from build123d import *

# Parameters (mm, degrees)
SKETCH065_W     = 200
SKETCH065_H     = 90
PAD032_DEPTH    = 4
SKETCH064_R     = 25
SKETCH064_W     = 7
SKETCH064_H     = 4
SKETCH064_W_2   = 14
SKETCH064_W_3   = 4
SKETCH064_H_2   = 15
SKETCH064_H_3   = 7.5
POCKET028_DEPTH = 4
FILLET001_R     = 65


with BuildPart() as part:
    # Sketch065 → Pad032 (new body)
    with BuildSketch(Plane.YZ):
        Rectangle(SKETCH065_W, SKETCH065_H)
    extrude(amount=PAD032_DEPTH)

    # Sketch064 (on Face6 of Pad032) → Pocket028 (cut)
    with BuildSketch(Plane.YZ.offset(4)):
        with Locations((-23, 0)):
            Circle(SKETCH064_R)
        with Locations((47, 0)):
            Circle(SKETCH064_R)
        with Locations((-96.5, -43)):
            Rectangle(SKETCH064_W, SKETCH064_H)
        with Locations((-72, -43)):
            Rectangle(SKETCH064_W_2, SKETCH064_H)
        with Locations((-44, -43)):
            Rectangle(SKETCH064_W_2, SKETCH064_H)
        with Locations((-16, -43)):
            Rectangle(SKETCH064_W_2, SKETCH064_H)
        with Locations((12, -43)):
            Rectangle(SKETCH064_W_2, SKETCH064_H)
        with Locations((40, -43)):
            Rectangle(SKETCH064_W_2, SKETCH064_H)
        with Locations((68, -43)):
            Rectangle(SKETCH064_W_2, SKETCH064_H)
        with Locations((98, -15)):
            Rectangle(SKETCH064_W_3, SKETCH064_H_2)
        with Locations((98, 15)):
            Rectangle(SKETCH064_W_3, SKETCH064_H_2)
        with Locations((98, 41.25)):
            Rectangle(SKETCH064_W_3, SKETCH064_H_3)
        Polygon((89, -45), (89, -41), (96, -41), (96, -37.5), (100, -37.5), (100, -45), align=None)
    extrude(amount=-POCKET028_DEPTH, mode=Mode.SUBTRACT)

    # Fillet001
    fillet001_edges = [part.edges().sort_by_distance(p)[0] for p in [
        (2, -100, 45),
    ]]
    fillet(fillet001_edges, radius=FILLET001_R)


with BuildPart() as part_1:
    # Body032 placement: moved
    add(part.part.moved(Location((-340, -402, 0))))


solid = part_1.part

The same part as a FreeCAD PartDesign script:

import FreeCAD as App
import Part
import Sketcher

V = App.Vector
Q = App.Units.Quantity


def edges_at(feature, points):
    """Names of the edges that pass closest to the given points."""
    edges = feature.Shape.Edges
    near = lambda p: min(range(len(edges)), key=lambda i: edges[i].distToShape(Part.Vertex(*p))[0])
    return sorted({f"Edge{near(p) + 1}" for p in points})

doc = App.newDocument("Part")
params = doc.addObject("Spreadsheet::Sheet", "Params")
for row, (alias, value) in enumerate([
    ("sketch1_width", "200 mm"),
    ("sketch1_height", "90 mm"),
    ("pad1_length", "4 mm"),
    ("sketch2_diameter", "50 mm"),
    ("sketch2_width", "7 mm"),
    ("sketch2_width2", "14 mm"),
    ("sketch2_width3", "4 mm"),
    ("sketch2_height", "15 mm"),
    ("pocket1_length", "4 mm"),
    ("fillet_radius", "65 mm"),
], start=1):
    params.set(f"A{row}", alias)
    params.set(f"B{row}", "=" + value)
    params.setAlias(f"B{row}", alias)

body = doc.addObject("PartDesign::Body", "Body")

sketch1 = body.newObject("Sketcher::SketchObject", "Sketch")
sketch1.AttachmentSupport = (doc.getObject("YZ_Plane"), [""])
sketch1.MapMode = "FlatFace"
sketch1.addGeometry(Part.LineSegment(V(-100, 45, 0), V(-100, -45, 0)), False)
sketch1.addGeometry(Part.LineSegment(V(-100, -45, 0), V(100, -45, 0)), False)
sketch1.addGeometry(Part.LineSegment(V(100, -45, 0), V(100, 45, 0)), False)
sketch1.addGeometry(Part.LineSegment(V(100, 45, 0), V(-100, 45, 0)), False)
sketch1.addConstraint(Sketcher.Constraint("Coincident", 0, 2, 1, 1))
sketch1.addConstraint(Sketcher.Constraint("Coincident", 1, 2, 2, 1))
sketch1.addConstraint(Sketcher.Constraint("Coincident", 2, 2, 3, 1))
sketch1.addConstraint(Sketcher.Constraint("Coincident", 3, 2, 0, 1))
sketch1.addConstraint(Sketcher.Constraint("Vertical", 0))
sketch1.addConstraint(Sketcher.Constraint("Horizontal", 1))
sketch1.addConstraint(Sketcher.Constraint("Vertical", 2))
sketch1.addConstraint(Sketcher.Constraint("Horizontal", 3))
sketch1.addConstraint(Sketcher.Constraint("Symmetric", 0, 2, 2, 2, -1, 1))
sketch1.addConstraint(Sketcher.Constraint("DistanceX", 1, 1, 1, 2, Q("200 mm")))
sketch1.addConstraint(Sketcher.Constraint("DistanceY", 0, 2, 0, 1, Q("90 mm")))
sketch1.setExpression("Constraints[9]", "Params.sketch1_width")
sketch1.setExpression("Constraints[10]", "Params.sketch1_height")
pad1 = body.newObject("PartDesign::Pad", "Pad")
pad1.Profile = sketch1
pad1.setExpression("Length", "Params.pad1_length")

sketch2 = body.newObject("Sketcher::SketchObject", "Sketch001")
sketch2.AttachmentSupport = (doc.getObject("YZ_Plane"), [""])
sketch2.MapMode = "FlatFace"
sketch2.AttachmentOffset = App.Placement(V(0, 0, 4), App.Rotation())
sketch2.addGeometry(Part.Circle(V(-23, 0, 0), V(0, 0, 1), 25), False)
sketch2.addGeometry(Part.Circle(V(47, 0, 0), V(0, 0, 1), 25), False)
sketch2.addGeometry(Part.LineSegment(V(-100, -41, 0), V(-100, -45, 0)), False)
sketch2.addGeometry(Part.LineSegment(V(-100, -45, 0), V(-93, -45, 0)), False)
sketch2.addGeometry(Part.LineSegment(V(-93, -45, 0), V(-93, -41, 0)), False)
sketch2.addGeometry(Part.LineSegment(V(-93, -41, 0), V(-100, -41, 0)), False)
sketch2.addGeometry(Part.LineSegment(V(-79, -41, 0), V(-79, -45, 0)), False)
sketch2.addGeometry(Part.LineSegment(V(-79, -45, 0), V(-65, -45, 0)), False)
sketch2.addGeometry(Part.LineSegment(V(-65, -45, 0), V(-65, -41, 0)), False)
sketch2.addGeometry(Part.LineSegment(V(-65, -41, 0), V(-79, -41, 0)), False)
sketch2.addGeometry(Part.LineSegment(V(-51, -41, 0), V(-51, -45, 0)), False)
sketch2.addGeometry(Part.LineSegment(V(-51, -45, 0), V(-37, -45, 0)), False)
sketch2.addGeometry(Part.LineSegment(V(-37, -45, 0), V(-37, -41, 0)), False)
sketch2.addGeometry(Part.LineSegment(V(-37, -41, 0), V(-51, -41, 0)), False)
sketch2.addGeometry(Part.LineSegment(V(-23, -41, 0), V(-23, -45, 0)), False)
sketch2.addGeometry(Part.LineSegment(V(-23, -45, 0), V(-9, -45, 0)), False)
sketch2.addGeometry(Part.LineSegment(V(-9, -45, 0), V(-9, -41, 0)), False)
sketch2.addGeometry(Part.LineSegment(V(-9, -41, 0), V(-23, -41, 0)), False)
sketch2.addGeometry(Part.LineSegment(V(5, -41, 0), V(5, -45, 0)), False)
sketch2.addGeometry(Part.LineSegment(V(5, -45, 0), V(19, -45, 0)), False)
sketch2.addGeometry(Part.LineSegment(V(19, -45, 0), V(19, -41, 0)), False)
sketch2.addGeometry(Part.LineSegment(V(19, -41, 0), V(5, -41, 0)), False)
sketch2.addGeometry(Part.LineSegment(V(33, -41, 0), V(33, -45, 0)), False)
sketch2.addGeometry(Part.LineSegment(V(33, -45, 0), V(47, -45, 0)), False)
sketch2.addGeometry(Part.LineSegment(V(47, -45, 0), V(47, -41, 0)), False)
sketch2.addGeometry(Part.LineSegment(V(47, -41, 0), V(33, -41, 0)), False)
sketch2.addGeometry(Part.LineSegment(V(61, -41, 0), V(61, -45, 0)), False)
sketch2.addGeometry(Part.LineSegment(V(61, -45, 0), V(75, -45, 0)), False)
sketch2.addGeometry(Part.LineSegment(V(75, -45, 0), V(75, -41, 0)), False)
sketch2.addGeometry(Part.LineSegment(V(75, -41, 0), V(61, -41, 0)), False)
sketch2.addGeometry(Part.LineSegment(V(96, -7.5, 0), V(96, -22.5, 0)), False)
sketch2.addGeometry(Part.LineSegment(V(96, -22.5, 0), V(100, -22.5, 0)), False)
sketch2.addGeometry(Part.LineSegment(V(100, -22.5, 0), V(100, -7.5, 0)), False)
sketch2.addGeometry(Part.LineSegment(V(100, -7.5, 0), V(96, -7.5, 0)), False)
sketch2.addGeometry(Part.LineSegment(V(96, 22.5, 0), V(96, 7.5, 0)), False)
sketch2.addGeometry(Part.LineSegment(V(96, 7.5, 0), V(100, 7.5, 0)), False)
sketch2.addGeometry(Part.LineSegment(V(100, 7.5, 0), V(100, 22.5, 0)), False)
sketch2.addGeometry(Part.LineSegment(V(100, 22.5, 0), V(96, 22.5, 0)), False)
sketch2.addGeometry(Part.LineSegment(V(96, 45, 0), V(96, 37.5, 0)), False)
sketch2.addGeometry(Part.LineSegment(V(96, 37.5, 0), V(100, 37.5, 0)), False)
sketch2.addGeometry(Part.LineSegment(V(100, 37.5, 0), V(100, 45, 0)), False)
sketch2.addGeometry(Part.LineSegment(V(100, 45, 0), V(96, 45, 0)), False)
sketch2.addGeometry(Part.LineSegment(V(89, -41, 0), V(89, -45, 0)), False)
sketch2.addGeometry(Part.LineSegment(V(89, -45, 0), V(100, -45, 0)), False)
sketch2.addGeometry(Part.LineSegment(V(100, -45, 0), V(100, -37.5, 0)), False)
sketch2.addGeometry(Part.LineSegment(V(100, -37.5, 0), V(96, -37.5, 0)), False)
sketch2.addGeometry(Part.LineSegment(V(96, -37.5, 0), V(96, -41, 0)), False)
sketch2.addGeometry(Part.LineSegment(V(96, -41, 0), V(89, -41, 0)), False)
sketch2.addConstraint(Sketcher.Constraint("Coincident", 2, 2, 3, 1))
sketch2.addConstraint(Sketcher.Constraint("Coincident", 3, 2, 4, 1))
sketch2.addConstraint(Sketcher.Constraint("Coincident", 4, 2, 5, 1))
sketch2.addConstraint(Sketcher.Constraint("Coincident", 5, 2, 2, 1))
sketch2.addConstraint(Sketcher.Constraint("Coincident", 6, 2, 7, 1))
sketch2.addConstraint(Sketcher.Constraint("Coincident", 7, 2, 8, 1))
sketch2.addConstraint(Sketcher.Constraint("Coincident", 8, 2, 9, 1))
sketch2.addConstraint(Sketcher.Constraint("Coincident", 9, 2, 6, 1))
sketch2.addConstraint(Sketcher.Constraint("Coincident", 10, 2, 11, 1))
sketch2.addConstraint(Sketcher.Constraint("Coincident", 11, 2, 12, 1))
sketch2.addConstraint(Sketcher.Constraint("Coincident", 12, 2, 13, 1))
sketch2.addConstraint(Sketcher.Constraint("Coincident", 13, 2, 10, 1))
sketch2.addConstraint(Sketcher.Constraint("Coincident", 14, 2, 15, 1))
sketch2.addConstraint(Sketcher.Constraint("Coincident", 15, 2, 16, 1))
sketch2.addConstraint(Sketcher.Constraint("Coincident", 16, 2, 17, 1))
sketch2.addConstraint(Sketcher.Constraint("Coincident", 17, 2, 14, 1))
sketch2.addConstraint(Sketcher.Constraint("Coincident", 18, 2, 19, 1))
sketch2.addConstraint(Sketcher.Constraint("Coincident", 19, 2, 20, 1))
sketch2.addConstraint(Sketcher.Constraint("Coincident", 20, 2, 21, 1))
sketch2.addConstraint(Sketcher.Constraint("Coincident", 21, 2, 18, 1))
sketch2.addConstraint(Sketcher.Constraint("Coincident", 22, 2, 23, 1))
sketch2.addConstraint(Sketcher.Constraint("Coincident", 23, 2, 24, 1))
sketch2.addConstraint(Sketcher.Constraint("Coincident", 24, 2, 25, 1))
sketch2.addConstraint(Sketcher.Constraint("Coincident", 25, 2, 22, 1))
sketch2.addConstraint(Sketcher.Constraint("Coincident", 26, 2, 27, 1))
sketch2.addConstraint(Sketcher.Constraint("Coincident", 27, 2, 28, 1))
sketch2.addConstraint(Sketcher.Constraint("Coincident", 28, 2, 29, 1))
sketch2.addConstraint(Sketcher.Constraint("Coincident", 29, 2, 26, 1))
sketch2.addConstraint(Sketcher.Constraint("Coincident", 30, 2, 31, 1))
sketch2.addConstraint(Sketcher.Constraint("Coincident", 31, 2, 32, 1))
sketch2.addConstraint(Sketcher.Constraint("Coincident", 32, 2, 33, 1))
sketch2.addConstraint(Sketcher.Constraint("Coincident", 33, 2, 30, 1))
sketch2.addConstraint(Sketcher.Constraint("Coincident", 34, 2, 35, 1))
sketch2.addConstraint(Sketcher.Constraint("Coincident", 35, 2, 36, 1))
sketch2.addConstraint(Sketcher.Constraint("Coincident", 36, 2, 37, 1))
sketch2.addConstraint(Sketcher.Constraint("Coincident", 37, 2, 34, 1))
sketch2.addConstraint(Sketcher.Constraint("Coincident", 38, 2, 39, 1))
sketch2.addConstraint(Sketcher.Constraint("Coincident", 39, 2, 40, 1))
sketch2.addConstraint(Sketcher.Constraint("Coincident", 40, 2, 41, 1))
sketch2.addConstraint(Sketcher.Constraint("Coincident", 41, 2, 38, 1))
sketch2.addConstraint(Sketcher.Constraint("Coincident", 42, 2, 43, 1))
sketch2.addConstraint(Sketcher.Constraint("Coincident", 43, 2, 44, 1))
sketch2.addConstraint(Sketcher.Constraint("Coincident", 44, 2, 45, 1))
sketch2.addConstraint(Sketcher.Constraint("Coincident", 45, 2, 46, 1))
sketch2.addConstraint(Sketcher.Constraint("Coincident", 46, 2, 47, 1))
sketch2.addConstraint(Sketcher.Constraint("Coincident", 47, 2, 42, 1))
sketch2.addConstraint(Sketcher.Constraint("Vertical", 2))
sketch2.addConstraint(Sketcher.Constraint("Horizontal", 3))
sketch2.addConstraint(Sketcher.Constraint("Vertical", 4))
sketch2.addConstraint(Sketcher.Constraint("Horizontal", 5))
sketch2.addConstraint(Sketcher.Constraint("Vertical", 6))
sketch2.addConstraint(Sketcher.Constraint("Horizontal", 7))
sketch2.addConstraint(Sketcher.Constraint("Vertical", 8))
sketch2.addConstraint(Sketcher.Constraint("Horizontal", 9))
sketch2.addConstraint(Sketcher.Constraint("Vertical", 10))
sketch2.addConstraint(Sketcher.Constraint("Horizontal", 11))
sketch2.addConstraint(Sketcher.Constraint("Vertical", 12))
sketch2.addConstraint(Sketcher.Constraint("Horizontal", 13))
sketch2.addConstraint(Sketcher.Constraint("Vertical", 14))
sketch2.addConstraint(Sketcher.Constraint("Horizontal", 15))
sketch2.addConstraint(Sketcher.Constraint("Vertical", 16))
sketch2.addConstraint(Sketcher.Constraint("Horizontal", 17))
sketch2.addConstraint(Sketcher.Constraint("Vertical", 18))
sketch2.addConstraint(Sketcher.Constraint("Horizontal", 19))
sketch2.addConstraint(Sketcher.Constraint("Vertical", 20))
sketch2.addConstraint(Sketcher.Constraint("Horizontal", 21))
sketch2.addConstraint(Sketcher.Constraint("Vertical", 22))
sketch2.addConstraint(Sketcher.Constraint("Horizontal", 23))
sketch2.addConstraint(Sketcher.Constraint("Vertical", 24))
sketch2.addConstraint(Sketcher.Constraint("Horizontal", 25))
sketch2.addConstraint(Sketcher.Constraint("Vertical", 26))
sketch2.addConstraint(Sketcher.Constraint("Horizontal", 27))
sketch2.addConstraint(Sketcher.Constraint("Vertical", 28))
sketch2.addConstraint(Sketcher.Constraint("Horizontal", 29))
sketch2.addConstraint(Sketcher.Constraint("Vertical", 30))
sketch2.addConstraint(Sketcher.Constraint("Horizontal", 31))
sketch2.addConstraint(Sketcher.Constraint("Vertical", 32))
sketch2.addConstraint(Sketcher.Constraint("Horizontal", 33))
sketch2.addConstraint(Sketcher.Constraint("Vertical", 34))
sketch2.addConstraint(Sketcher.Constraint("Horizontal", 35))
sketch2.addConstraint(Sketcher.Constraint("Vertical", 36))
sketch2.addConstraint(Sketcher.Constraint("Horizontal", 37))
sketch2.addConstraint(Sketcher.Constraint("Vertical", 38))
sketch2.addConstraint(Sketcher.Constraint("Horizontal", 39))
sketch2.addConstraint(Sketcher.Constraint("Vertical", 40))
sketch2.addConstraint(Sketcher.Constraint("Horizontal", 41))
sketch2.addConstraint(Sketcher.Constraint("Vertical", 42))
sketch2.addConstraint(Sketcher.Constraint("Horizontal", 43))
sketch2.addConstraint(Sketcher.Constraint("Vertical", 44))
sketch2.addConstraint(Sketcher.Constraint("Horizontal", 45))
sketch2.addConstraint(Sketcher.Constraint("Vertical", 46))
sketch2.addConstraint(Sketcher.Constraint("Horizontal", 47))
sketch2.addConstraint(Sketcher.Constraint("Equal", 0, 1))
sketch2.addConstraint(Sketcher.Constraint("Symmetric", 2, 2, 40, 2, -1, 1))
sketch2.addConstraint(Sketcher.Constraint("Symmetric", 2, 2, 43, 2, -2))
sketch2.addConstraint(Sketcher.Constraint("Symmetric", 33, 2, 34, 2, -1))
sketch2.addConstraint(Sketcher.Constraint("Symmetric", 31, 2, 36, 2, -1))
sketch2.addConstraint(Sketcher.Constraint("Symmetric", 38, 2, 45, 2, -1))
sketch2.addConstraint(Sketcher.Constraint("PointOnObject", 0, 3, -1))
sketch2.addConstraint(Sketcher.Constraint("PointOnObject", 1, 3, -1))
sketch2.addConstraint(Sketcher.Constraint("Horizontal", 3, 2, 6, 2))
sketch2.addConstraint(Sketcher.Constraint("Horizontal", 5, 2, 8, 2))
sketch2.addConstraint(Sketcher.Constraint("Horizontal", 7, 2, 10, 2))
sketch2.addConstraint(Sketcher.Constraint("Horizontal", 9, 2, 12, 2))
sketch2.addConstraint(Sketcher.Constraint("Horizontal", 11, 2, 14, 2))
sketch2.addConstraint(Sketcher.Constraint("Horizontal", 13, 2, 16, 2))
sketch2.addConstraint(Sketcher.Constraint("Horizontal", 15, 2, 18, 2))
sketch2.addConstraint(Sketcher.Constraint("Horizontal", 17, 2, 20, 2))
sketch2.addConstraint(Sketcher.Constraint("Horizontal", 19, 2, 22, 2))
sketch2.addConstraint(Sketcher.Constraint("Horizontal", 21, 2, 24, 2))
sketch2.addConstraint(Sketcher.Constraint("Horizontal", 23, 2, 26, 2))
sketch2.addConstraint(Sketcher.Constraint("Horizontal", 25, 2, 28, 2))
sketch2.addConstraint(Sketcher.Constraint("Horizontal", 29, 2, 46, 2))
sketch2.addConstraint(Sketcher.Constraint("Vertical", 0, 3, 14, 2))
sketch2.addConstraint(Sketcher.Constraint("Vertical", 1, 3, 23, 2))
sketch2.addConstraint(Sketcher.Constraint("Vertical", 37, 2, 38, 2))
sketch2.addConstraint(Sketcher.Constraint("Vertical", 36, 2, 39, 2))
sketch2.addConstraint(Sketcher.Constraint("Equal", 9, 11))
sketch2.addConstraint(Sketcher.Constraint("Equal", 13, 15))
sketch2.addConstraint(Sketcher.Constraint("Equal", 17, 19))
sketch2.addConstraint(Sketcher.Constraint("Equal", 21, 23))
sketch2.addConstraint(Sketcher.Constraint("Equal", 25, 27))
sketch2.addConstraint(Sketcher.Constraint("Equal", 5, 47))
sketch2.addConstraint(Sketcher.Constraint("Equal", 45, 2))
sketch2.addConstraint(Sketcher.Constraint("Diameter", 0, Q("50 mm")))
sketch2.addConstraint(Sketcher.Constraint("DistanceX", 3, 1, 3, 2, Q("7 mm")))
sketch2.addConstraint(Sketcher.Constraint("DistanceX", 7, 1, 7, 2, Q("14 mm")))
sketch2.addConstraint(Sketcher.Constraint("DistanceX", 31, 1, 31, 2, Q("4 mm")))
sketch2.addConstraint(Sketcher.Constraint("DistanceY", 30, 2, 30, 1, Q("15 mm")))
sketch2.addConstraint(Sketcher.Constraint("DistanceY", 38, 2, 38, 1, Q("7.5 mm")))
sketch2.addConstraint(Sketcher.Constraint("DistanceX", 0, 3, -1, 1, Q("23 mm")))
sketch2.addConstraint(Sketcher.Constraint("DistanceX", -1, 1, 1, 3, Q("47 mm")))
sketch2.addConstraint(Sketcher.Constraint("DistanceX", 2, 2, -1, 1, Q("100 mm")))
sketch2.addConstraint(Sketcher.Constraint("DistanceY", 2, 2, -1, 1, Q("45 mm")))
sketch2.addConstraint(Sketcher.Constraint("DistanceX", 6, 2, -1, 1, Q("79 mm")))
sketch2.addConstraint(Sketcher.Constraint("DistanceX", 10, 2, -1, 1, Q("51 mm")))
sketch2.addConstraint(Sketcher.Constraint("DistanceX", -1, 1, 18, 2, Q("5 mm")))
sketch2.addConstraint(Sketcher.Constraint("DistanceX", -1, 1, 26, 2, Q("61 mm")))
sketch2.addConstraint(Sketcher.Constraint("DistanceY", 33, 2, 34, 2, Q("15 mm")))
sketch2.setExpression("Constraints[124]", "Params.sketch2_diameter")
sketch2.setExpression("Constraints[125]", "Params.sketch2_width")
sketch2.setExpression("Constraints[126]", "Params.sketch2_width2")
sketch2.setExpression("Constraints[127]", "Params.sketch2_width3")
sketch2.setExpression("Constraints[128]", "Params.sketch2_height")
pocket1 = body.newObject("PartDesign::Pocket", "Pocket")
pocket1.Profile = sketch2
pocket1.setExpression("Length", "Params.pocket1_length")
doc.recompute()

fillet = body.newObject("PartDesign::Fillet", "Fillet")
fillet.Base = (pocket1, edges_at(pocket1, [(2, -100, 45)]))
fillet.setExpression("Radius", "Params.fillet_radius")
body2 = doc.addObject("PartDesign::Body", "Body001")
doc.recompute()

body.Placement = App.Placement(V(-340, -402, 0), App.Rotation(V(0, 0, 1), 0))
boolean = body2.newObject("PartDesign::Boolean", "Boolean")
boolean.Type = "Fuse"
boolean.addObjects([body])

doc.recompute()
